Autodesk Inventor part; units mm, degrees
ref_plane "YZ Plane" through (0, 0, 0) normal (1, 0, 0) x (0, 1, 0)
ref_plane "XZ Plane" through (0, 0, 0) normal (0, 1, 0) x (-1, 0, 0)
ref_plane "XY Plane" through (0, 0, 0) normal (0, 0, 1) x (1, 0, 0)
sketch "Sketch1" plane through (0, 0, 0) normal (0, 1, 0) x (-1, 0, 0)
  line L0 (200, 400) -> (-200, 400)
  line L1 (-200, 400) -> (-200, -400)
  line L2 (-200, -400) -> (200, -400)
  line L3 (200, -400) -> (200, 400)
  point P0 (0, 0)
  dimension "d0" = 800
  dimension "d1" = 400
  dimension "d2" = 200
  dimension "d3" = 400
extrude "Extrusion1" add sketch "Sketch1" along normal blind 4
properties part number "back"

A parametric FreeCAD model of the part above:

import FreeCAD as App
import Part
import Sketcher
from FreeCAD import Vector


def add_polygon(sketch, points):
    """Adds a closed chain of lines whose ends are joined by coincident constraints."""
    first, n = sketch.GeometryCount, len(points)
    for a, b in zip(points, points[1:] + points[:1]):
        sketch.addGeometry(Part.LineSegment(App.Vector(*a, 0), App.Vector(*b, 0)), False)
    for i in range(n):
        sketch.addConstraint(Sketcher.Constraint("Coincident", first + i, 2, first + (i + 1) % n, 1))

doc = App.newDocument("Part")
body = doc.addObject("PartDesign::Body", "Body")

sketch1 = doc.addObject("Sketcher::SketchObject", "Sketch")
body.addObject(sketch1)
sketch1.AttachmentSupport = (doc.XZ_Plane, [""])
sketch1.MapMode = "FlatFace"
add_polygon(sketch1, [(-200, -400), (-200, 400), (200, 400), (200, -400)])
sketch1.addConstraint([
    Sketcher.Constraint("Vertical", 0),
    Sketcher.Constraint("Horizontal", 1),
    Sketcher.Constraint("Vertical", 2),
    Sketcher.Constraint("Horizontal", 3),
    Sketcher.Constraint("Symmetric", 0, 2, 2, 2, -1, 1),
    Sketcher.Constraint("DistanceX", 1, 1, 1, 2, 400.0),
    Sketcher.Constraint("DistanceY", 0, 1, 0, 2, 800.0),
])
pad1 = doc.addObject("PartDesign::Pad", "Pad")
body.addObject(pad1)
pad1.Profile = sketch1
pad1.Length = 4
pad1.Reversed = True

doc.recompute()
